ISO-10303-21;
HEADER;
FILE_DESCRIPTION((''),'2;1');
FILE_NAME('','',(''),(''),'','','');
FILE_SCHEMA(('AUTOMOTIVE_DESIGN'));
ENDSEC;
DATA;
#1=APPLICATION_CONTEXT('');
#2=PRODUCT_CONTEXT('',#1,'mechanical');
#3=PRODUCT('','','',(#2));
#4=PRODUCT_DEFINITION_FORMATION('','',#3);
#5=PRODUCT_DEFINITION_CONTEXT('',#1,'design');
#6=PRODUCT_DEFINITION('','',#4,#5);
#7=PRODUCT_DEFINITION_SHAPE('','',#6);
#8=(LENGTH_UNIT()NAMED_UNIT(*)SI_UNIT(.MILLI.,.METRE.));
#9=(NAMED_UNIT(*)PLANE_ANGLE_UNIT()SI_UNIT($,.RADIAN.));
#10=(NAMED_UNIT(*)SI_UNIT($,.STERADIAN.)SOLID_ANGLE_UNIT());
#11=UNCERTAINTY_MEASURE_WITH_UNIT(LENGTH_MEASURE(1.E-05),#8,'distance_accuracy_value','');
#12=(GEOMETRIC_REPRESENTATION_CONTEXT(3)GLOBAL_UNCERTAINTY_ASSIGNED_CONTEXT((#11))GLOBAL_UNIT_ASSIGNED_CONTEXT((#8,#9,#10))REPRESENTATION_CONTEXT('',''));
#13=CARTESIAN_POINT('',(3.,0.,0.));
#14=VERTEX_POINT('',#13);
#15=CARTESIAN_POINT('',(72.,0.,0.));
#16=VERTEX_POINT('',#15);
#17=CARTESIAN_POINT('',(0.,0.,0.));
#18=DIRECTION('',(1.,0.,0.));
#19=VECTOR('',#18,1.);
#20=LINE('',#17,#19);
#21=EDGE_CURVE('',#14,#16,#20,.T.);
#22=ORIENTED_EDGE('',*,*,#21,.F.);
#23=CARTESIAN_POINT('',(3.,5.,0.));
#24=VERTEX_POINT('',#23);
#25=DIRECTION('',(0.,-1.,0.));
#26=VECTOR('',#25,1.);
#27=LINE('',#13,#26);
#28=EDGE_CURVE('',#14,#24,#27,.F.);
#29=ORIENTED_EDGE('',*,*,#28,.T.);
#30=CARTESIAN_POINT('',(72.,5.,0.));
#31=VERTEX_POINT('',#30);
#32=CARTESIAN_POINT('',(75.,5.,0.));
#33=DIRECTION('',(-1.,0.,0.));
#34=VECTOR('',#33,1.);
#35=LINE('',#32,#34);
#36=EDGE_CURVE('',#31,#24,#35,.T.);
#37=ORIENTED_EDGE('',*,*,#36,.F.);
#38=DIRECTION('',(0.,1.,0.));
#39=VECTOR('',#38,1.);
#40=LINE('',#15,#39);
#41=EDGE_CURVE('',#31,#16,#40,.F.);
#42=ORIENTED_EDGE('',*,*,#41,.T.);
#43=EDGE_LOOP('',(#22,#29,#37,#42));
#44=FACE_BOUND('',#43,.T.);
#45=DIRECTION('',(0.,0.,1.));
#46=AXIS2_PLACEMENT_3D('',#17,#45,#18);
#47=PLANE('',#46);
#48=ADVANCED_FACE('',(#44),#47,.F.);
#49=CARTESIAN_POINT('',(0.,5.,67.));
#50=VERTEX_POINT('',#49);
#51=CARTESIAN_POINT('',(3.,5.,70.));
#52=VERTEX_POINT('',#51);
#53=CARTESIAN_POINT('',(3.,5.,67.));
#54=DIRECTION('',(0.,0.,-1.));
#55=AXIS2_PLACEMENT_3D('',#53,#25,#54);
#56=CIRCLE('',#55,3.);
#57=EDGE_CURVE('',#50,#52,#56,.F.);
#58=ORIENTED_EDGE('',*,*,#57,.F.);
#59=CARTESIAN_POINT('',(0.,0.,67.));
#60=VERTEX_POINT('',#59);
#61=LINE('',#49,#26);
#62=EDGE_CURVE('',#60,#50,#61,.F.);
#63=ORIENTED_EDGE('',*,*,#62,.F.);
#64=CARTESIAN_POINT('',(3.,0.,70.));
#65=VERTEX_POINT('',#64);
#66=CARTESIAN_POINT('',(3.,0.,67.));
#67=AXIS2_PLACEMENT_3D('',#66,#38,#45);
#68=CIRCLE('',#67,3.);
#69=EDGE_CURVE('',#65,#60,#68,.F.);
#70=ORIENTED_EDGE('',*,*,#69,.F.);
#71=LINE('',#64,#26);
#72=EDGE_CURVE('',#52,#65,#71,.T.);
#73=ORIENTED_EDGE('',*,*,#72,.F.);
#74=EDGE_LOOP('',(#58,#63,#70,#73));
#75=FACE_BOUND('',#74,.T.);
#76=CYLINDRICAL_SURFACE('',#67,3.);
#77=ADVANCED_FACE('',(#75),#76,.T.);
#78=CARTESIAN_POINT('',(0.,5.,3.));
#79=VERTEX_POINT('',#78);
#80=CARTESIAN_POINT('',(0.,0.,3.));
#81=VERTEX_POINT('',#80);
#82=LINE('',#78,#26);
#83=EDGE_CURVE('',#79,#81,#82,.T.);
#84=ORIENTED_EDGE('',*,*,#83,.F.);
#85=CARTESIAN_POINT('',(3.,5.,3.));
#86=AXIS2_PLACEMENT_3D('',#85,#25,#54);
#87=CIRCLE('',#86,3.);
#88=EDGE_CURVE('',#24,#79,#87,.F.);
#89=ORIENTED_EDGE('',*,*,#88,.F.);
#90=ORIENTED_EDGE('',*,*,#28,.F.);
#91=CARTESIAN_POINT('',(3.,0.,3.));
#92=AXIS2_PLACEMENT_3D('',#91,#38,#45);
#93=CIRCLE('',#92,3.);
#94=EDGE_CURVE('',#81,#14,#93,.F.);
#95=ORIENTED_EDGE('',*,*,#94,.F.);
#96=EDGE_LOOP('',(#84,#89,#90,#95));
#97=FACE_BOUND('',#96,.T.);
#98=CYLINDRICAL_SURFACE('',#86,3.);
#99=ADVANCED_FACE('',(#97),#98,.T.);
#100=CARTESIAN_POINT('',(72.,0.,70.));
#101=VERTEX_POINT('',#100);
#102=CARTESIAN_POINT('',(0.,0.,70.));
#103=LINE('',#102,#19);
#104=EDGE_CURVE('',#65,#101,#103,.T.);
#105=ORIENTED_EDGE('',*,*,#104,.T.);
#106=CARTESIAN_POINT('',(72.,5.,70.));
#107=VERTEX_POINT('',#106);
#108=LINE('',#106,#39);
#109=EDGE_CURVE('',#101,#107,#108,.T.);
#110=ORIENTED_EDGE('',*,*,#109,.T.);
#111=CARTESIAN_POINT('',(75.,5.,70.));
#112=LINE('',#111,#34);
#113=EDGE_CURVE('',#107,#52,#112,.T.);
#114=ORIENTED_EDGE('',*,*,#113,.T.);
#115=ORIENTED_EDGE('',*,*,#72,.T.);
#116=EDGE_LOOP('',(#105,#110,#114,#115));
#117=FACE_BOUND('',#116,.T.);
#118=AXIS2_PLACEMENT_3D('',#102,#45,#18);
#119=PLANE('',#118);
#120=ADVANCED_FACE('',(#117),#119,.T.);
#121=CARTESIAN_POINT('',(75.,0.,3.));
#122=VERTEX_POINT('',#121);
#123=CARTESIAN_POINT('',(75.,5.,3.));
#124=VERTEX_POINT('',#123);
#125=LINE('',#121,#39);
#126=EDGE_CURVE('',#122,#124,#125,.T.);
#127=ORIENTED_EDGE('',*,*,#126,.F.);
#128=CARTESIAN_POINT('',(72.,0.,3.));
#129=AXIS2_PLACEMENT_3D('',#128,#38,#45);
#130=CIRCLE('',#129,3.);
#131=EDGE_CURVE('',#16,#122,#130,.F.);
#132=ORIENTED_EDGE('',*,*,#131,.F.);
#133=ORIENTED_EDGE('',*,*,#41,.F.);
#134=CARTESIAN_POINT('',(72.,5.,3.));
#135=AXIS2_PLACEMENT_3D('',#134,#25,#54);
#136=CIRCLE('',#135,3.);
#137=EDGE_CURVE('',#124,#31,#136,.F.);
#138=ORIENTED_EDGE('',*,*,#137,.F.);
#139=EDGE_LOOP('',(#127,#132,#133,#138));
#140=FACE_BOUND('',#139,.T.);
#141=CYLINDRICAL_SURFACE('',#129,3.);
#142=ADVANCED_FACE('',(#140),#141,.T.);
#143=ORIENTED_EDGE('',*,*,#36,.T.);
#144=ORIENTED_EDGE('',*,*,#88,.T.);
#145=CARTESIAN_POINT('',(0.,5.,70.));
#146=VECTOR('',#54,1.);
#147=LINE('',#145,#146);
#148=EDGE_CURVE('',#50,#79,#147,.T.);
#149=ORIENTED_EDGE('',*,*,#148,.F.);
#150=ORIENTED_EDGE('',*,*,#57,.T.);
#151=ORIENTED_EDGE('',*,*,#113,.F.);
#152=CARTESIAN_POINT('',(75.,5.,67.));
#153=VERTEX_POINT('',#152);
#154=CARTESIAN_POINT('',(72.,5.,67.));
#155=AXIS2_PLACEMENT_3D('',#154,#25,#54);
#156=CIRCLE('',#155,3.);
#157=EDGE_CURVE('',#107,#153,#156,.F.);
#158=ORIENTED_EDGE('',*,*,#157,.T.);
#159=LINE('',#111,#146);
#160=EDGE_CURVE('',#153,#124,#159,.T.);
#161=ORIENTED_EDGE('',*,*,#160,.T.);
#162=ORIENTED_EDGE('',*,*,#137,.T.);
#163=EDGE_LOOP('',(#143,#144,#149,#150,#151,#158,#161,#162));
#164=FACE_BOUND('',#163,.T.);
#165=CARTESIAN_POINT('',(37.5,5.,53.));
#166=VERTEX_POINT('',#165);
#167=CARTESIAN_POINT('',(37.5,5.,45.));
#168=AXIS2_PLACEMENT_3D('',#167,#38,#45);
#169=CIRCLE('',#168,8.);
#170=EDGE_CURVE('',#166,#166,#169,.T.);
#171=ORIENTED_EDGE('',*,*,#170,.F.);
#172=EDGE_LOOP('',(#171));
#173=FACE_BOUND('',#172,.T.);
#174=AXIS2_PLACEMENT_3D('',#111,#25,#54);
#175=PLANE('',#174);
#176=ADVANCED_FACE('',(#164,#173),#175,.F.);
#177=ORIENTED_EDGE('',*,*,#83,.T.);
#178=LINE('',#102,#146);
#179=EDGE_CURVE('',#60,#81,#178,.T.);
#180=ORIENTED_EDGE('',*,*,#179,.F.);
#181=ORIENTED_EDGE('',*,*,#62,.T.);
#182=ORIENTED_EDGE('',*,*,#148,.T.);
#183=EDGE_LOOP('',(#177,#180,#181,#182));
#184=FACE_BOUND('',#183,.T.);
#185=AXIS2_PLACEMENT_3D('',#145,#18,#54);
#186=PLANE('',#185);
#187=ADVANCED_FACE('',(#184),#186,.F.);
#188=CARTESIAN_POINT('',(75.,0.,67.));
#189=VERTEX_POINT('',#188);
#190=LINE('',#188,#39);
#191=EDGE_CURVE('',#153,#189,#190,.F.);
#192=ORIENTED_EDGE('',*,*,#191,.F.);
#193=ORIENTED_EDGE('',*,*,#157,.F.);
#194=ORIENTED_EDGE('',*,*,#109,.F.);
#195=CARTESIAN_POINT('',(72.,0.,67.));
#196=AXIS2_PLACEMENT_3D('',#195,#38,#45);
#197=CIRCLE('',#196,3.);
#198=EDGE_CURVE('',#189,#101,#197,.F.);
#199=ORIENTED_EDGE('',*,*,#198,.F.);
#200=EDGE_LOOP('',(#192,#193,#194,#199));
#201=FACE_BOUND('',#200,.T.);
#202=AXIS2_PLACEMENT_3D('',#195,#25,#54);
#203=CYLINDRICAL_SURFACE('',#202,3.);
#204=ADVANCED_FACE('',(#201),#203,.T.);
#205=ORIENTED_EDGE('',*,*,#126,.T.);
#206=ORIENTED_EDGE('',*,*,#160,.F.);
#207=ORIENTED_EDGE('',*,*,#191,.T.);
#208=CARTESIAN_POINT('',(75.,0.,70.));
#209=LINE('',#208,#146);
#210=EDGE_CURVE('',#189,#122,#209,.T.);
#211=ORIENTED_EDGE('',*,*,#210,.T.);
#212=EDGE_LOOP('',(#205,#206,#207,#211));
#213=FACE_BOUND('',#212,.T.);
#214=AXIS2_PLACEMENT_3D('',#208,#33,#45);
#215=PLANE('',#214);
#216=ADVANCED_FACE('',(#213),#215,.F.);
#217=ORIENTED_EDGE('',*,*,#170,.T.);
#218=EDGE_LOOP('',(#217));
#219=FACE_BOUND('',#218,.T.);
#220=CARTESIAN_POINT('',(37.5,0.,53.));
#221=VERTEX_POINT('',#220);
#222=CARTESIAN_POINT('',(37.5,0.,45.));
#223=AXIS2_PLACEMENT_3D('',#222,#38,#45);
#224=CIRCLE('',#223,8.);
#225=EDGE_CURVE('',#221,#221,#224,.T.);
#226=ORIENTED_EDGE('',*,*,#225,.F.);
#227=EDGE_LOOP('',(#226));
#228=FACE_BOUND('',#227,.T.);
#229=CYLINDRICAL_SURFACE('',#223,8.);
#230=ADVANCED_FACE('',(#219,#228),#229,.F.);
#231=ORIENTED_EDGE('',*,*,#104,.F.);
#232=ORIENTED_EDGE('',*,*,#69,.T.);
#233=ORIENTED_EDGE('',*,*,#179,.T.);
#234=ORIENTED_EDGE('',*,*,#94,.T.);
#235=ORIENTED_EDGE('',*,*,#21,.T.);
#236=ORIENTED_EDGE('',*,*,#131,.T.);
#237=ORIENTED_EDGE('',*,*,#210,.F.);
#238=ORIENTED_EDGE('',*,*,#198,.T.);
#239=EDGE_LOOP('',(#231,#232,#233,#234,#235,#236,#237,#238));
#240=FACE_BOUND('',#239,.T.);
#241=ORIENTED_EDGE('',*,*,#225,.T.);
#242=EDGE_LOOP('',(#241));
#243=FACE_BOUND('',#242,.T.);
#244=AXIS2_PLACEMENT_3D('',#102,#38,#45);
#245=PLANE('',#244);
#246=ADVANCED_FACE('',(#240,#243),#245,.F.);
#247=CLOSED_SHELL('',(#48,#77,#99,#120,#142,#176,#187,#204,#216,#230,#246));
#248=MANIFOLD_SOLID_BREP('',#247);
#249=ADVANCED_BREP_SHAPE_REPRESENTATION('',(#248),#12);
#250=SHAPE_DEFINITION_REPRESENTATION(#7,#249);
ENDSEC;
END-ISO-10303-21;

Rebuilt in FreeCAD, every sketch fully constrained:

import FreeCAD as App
import Part
import Sketcher
from FreeCAD import Vector
Q = App.Units.Quantity


def edges_at(feature, points):
    """Names of the edges that pass closest to the given points."""
    edges = feature.Shape.Edges
    near = lambda p: min(range(len(edges)), key=lambda i: edges[i].distToShape(Part.Vertex(*p))[0])
    return sorted({f"Edge{near(p) + 1}" for p in points})


def add_polygon(sketch, points):
    """Adds a closed chain of lines whose ends are joined by coincident constraints."""
    first, n = sketch.GeometryCount, len(points)
    for a, b in zip(points, points[1:] + points[:1]):
        sketch.addGeometry(Part.LineSegment(App.Vector(*a, 0), App.Vector(*b, 0)), False)
    for i in range(n):
        sketch.addConstraint(Sketcher.Constraint("Coincident", first + i, 2, first + (i + 1) % n, 1))

doc = App.newDocument("Part")
params = doc.addObject("Spreadsheet::Sheet", "Params")
for row, (alias, value) in enumerate([
    ("sketch1_width", "75 mm"),
    ("sketch1_height", "5 mm"),
    ("pad1_length", "70 mm"),
    ("fillet_radius", "3 mm"),
    ("sketch2_diameter", "16 mm"),
], start=1):
    params.set(f"A{row}", alias)
    params.set(f"B{row}", "=" + value)
    params.setAlias(f"B{row}", alias)

body = doc.addObject("PartDesign::Body", "Body")

# Sketch on XY plane
sketch1 = body.newObject("Sketcher::SketchObject", "Sketch")
sketch1.AttachmentSupport = (doc.getObject("XY_Plane"), [""])
sketch1.MapMode = "FlatFace"
add_polygon(sketch1, [(0, 5), (0, 0), (75, 0), (75, 5)])  # lines 0-3
sketch1.addConstraint(Sketcher.Constraint("Vertical", 0))
sketch1.addConstraint(Sketcher.Constraint("Horizontal", 1))
sketch1.addConstraint(Sketcher.Constraint("Vertical", 2))
sketch1.addConstraint(Sketcher.Constraint("Horizontal", 3))
sketch1.addConstraint(Sketcher.Constraint("Coincident", 0, 2, -1, 1))
sketch1.addConstraint(Sketcher.Constraint("DistanceX", 1, 1, 1, 2, Q("75 mm")))
sketch1.addConstraint(Sketcher.Constraint("DistanceY", 0, 2, 0, 1, Q("5 mm")))
sketch1.setExpression("Constraints[9]", "Params.sketch1_width")
sketch1.setExpression("Constraints[10]", "Params.sketch1_height")
pad1 = body.newObject("PartDesign::Pad", "Pad")
pad1.Profile = sketch1
pad1.setExpression("Length", "Params.pad1_length")
doc.recompute()

fillet = body.newObject("PartDesign::Fillet", "Fillet")
fillet.Base = (pad1, edges_at(pad1, [
    (75, 2.5, 70),
    (0, 2.5, 70),
    (75, 2.5, 0),
    (0, 2.5, 0),
]))
fillet.setExpression("Radius", "Params.fillet_radius")

# Sketch on XZ plane
sketch2 = body.newObject("Sketcher::SketchObject", "Sketch001")
sketch2.AttachmentSupport = (doc.getObject("XZ_Plane"), [""])
sketch2.MapMode = "FlatFace"
sketch2.AttachmentOffset = App.Placement(Vector(0, 0, -5), App.Rotation())
sketch2.addGeometry(Part.Circle(Vector(38, 45, 0), Vector(0, 0, 1), 8), False)
sketch2.addConstraint(Sketcher.Constraint("Diameter", 0, Q("16 mm")))
sketch2.addConstraint(Sketcher.Constraint("DistanceY", -1, 1, 0, 3, Q("45 mm")))
sketch2.addConstraint(Sketcher.Constraint("DistanceX", -1, 1, 0, 3, Q("37.5 mm")))
sketch2.setExpression("Constraints[0]", "Params.sketch2_diameter")
pocket1 = body.newObject("PartDesign::Pocket", "Pocket")
pocket1.Profile = sketch2
pocket1.Type = "ThroughAll"
pocket1.Reversed = True

doc.recompute()
